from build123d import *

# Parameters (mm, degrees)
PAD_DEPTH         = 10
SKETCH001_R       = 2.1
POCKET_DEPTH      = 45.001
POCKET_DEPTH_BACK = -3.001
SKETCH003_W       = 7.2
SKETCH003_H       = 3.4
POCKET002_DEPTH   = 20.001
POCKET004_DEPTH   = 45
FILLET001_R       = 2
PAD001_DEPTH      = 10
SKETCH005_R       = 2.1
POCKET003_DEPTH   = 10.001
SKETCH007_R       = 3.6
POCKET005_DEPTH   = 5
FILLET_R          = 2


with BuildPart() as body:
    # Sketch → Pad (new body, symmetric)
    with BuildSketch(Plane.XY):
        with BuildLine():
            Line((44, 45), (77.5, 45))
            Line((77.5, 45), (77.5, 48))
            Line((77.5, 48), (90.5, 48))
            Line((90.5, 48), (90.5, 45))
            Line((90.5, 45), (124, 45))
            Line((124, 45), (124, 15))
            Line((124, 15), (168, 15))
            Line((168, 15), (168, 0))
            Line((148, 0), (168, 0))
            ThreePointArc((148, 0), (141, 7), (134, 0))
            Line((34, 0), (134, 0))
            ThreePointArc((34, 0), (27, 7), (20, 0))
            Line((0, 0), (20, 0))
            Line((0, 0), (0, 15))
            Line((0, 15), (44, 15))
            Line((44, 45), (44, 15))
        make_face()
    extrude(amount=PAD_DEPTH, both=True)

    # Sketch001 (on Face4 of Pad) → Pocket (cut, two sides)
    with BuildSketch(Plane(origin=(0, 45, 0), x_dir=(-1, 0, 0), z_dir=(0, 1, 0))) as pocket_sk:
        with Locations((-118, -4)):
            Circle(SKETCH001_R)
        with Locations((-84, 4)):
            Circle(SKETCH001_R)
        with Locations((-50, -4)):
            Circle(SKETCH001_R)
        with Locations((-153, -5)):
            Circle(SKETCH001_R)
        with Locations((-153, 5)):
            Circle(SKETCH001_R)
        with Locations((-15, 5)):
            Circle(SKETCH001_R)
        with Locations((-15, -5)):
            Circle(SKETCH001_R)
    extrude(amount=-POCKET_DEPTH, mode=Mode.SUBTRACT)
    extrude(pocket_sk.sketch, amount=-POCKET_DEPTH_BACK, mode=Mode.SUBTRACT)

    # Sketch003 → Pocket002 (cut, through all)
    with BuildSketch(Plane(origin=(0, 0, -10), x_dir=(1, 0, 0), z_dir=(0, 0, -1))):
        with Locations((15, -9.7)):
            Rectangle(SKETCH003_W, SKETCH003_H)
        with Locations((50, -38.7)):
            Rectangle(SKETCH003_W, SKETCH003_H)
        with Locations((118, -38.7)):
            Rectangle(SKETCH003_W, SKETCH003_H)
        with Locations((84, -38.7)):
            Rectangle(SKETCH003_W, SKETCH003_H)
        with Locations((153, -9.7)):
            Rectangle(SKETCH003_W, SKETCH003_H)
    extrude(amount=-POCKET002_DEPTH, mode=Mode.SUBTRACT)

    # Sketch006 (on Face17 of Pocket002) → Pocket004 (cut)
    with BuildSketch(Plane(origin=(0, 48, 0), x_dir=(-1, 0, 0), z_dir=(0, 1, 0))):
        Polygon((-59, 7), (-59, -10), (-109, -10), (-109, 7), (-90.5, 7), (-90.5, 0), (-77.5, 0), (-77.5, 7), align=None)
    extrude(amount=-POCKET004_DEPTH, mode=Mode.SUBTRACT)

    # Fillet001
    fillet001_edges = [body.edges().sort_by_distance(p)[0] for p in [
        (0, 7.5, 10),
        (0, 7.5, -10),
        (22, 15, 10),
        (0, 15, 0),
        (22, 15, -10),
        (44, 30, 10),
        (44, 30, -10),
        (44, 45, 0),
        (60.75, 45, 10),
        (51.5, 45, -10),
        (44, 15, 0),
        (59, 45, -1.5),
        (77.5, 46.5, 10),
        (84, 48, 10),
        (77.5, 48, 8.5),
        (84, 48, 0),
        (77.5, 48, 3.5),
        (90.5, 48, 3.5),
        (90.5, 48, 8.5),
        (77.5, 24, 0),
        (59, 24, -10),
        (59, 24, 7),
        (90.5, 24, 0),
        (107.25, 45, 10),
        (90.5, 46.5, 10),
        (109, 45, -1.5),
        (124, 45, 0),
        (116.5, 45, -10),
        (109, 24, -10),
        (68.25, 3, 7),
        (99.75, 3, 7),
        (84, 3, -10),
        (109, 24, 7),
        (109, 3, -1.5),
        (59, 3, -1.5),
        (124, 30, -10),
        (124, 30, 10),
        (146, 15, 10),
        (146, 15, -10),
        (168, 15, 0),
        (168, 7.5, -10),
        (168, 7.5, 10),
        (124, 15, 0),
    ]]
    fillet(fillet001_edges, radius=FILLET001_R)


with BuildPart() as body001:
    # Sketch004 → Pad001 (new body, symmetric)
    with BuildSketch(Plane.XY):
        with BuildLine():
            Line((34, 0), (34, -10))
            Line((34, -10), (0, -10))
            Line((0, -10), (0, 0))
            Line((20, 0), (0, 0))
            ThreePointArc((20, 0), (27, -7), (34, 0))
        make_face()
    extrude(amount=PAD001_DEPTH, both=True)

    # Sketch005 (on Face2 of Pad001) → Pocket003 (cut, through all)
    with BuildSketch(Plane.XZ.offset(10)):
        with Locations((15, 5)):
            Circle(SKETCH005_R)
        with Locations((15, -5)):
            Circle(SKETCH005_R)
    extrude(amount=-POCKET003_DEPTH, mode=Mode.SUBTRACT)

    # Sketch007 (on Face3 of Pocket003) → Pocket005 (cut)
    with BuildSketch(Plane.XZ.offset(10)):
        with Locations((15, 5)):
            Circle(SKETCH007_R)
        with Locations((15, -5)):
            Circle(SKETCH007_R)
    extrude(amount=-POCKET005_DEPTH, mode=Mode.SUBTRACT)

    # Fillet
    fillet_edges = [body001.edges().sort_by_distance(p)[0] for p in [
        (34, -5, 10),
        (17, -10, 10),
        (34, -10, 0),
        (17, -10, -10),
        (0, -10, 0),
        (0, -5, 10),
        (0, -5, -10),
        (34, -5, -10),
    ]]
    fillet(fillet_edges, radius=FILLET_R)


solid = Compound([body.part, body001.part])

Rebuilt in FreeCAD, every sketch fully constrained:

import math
import FreeCAD as App
import Part
import Sketcher
from FreeCAD import Vector


def edges_at(feature, points):
    """Names of the edges that pass closest to the given points."""
    edges = feature.Shape.Edges
    near = lambda p: min(range(len(edges)), key=lambda i: edges[i].distToShape(Part.Vertex(*p))[0])
    return sorted({f"Edge{near(p) + 1}" for p in points})


def add_polygon(sketch, points):
    """Adds a closed chain of lines whose ends are joined by coincident constraints."""
    first, n = sketch.GeometryCount, len(points)
    for a, b in zip(points, points[1:] + points[:1]):
        sketch.addGeometry(Part.LineSegment(App.Vector(*a, 0), App.Vector(*b, 0)), False)
    for i in range(n):
        sketch.addConstraint(Sketcher.Constraint("Coincident", first + i, 2, first + (i + 1) % n, 1))

doc = App.newDocument("Part")
body = doc.addObject("PartDesign::Body", "Body")

sketch1 = body.newObject("Sketcher::SketchObject", "Sketch")
sketch1.AttachmentSupport = (doc.getObject("XY_Plane"), [""])
sketch1.MapMode = "FlatFace"
sketch1.addGeometry([
    Part.LineSegment(Vector(77.5, 45, 0), Vector(44, 45, 0)),
    Part.LineSegment(Vector(44, 45, 0), Vector(44, 15, 0)),
    Part.LineSegment(Vector(44, 15, 0), Vector(0, 15, 0)),
    Part.LineSegment(Vector(0, 15, 0), Vector(0, 0, 0)),
    Part.LineSegment(Vector(0, 0, 0), Vector(20, 0, 0)),
    Part.ArcOfCircle(Part.Circle(Vector(27, 0, 0), Vector(0, 0, 1), 7), math.radians(0), math.radians(180)),
    Part.LineSegment(Vector(34, 0, 0), Vector(134, 0, 0)),
    Part.ArcOfCircle(Part.Circle(Vector(141, 0, 0), Vector(0, 0, 1), 7), math.radians(0), math.radians(180)),
    Part.LineSegment(Vector(148, 0, 0), Vector(168, 0, 0)),
    Part.LineSegment(Vector(168, 0, 0), Vector(168, 15, 0)),
    Part.LineSegment(Vector(168, 15, 0), Vector(124, 15, 0)),
    Part.LineSegment(Vector(124, 15, 0), Vector(124, 45, 0)),
    Part.LineSegment(Vector(124, 45, 0), Vector(90.5, 45, 0)),
    Part.LineSegment(Vector(90.5, 45, 0), Vector(90.5, 48, 0)),
    Part.LineSegment(Vector(90.5, 48, 0), Vector(77.5, 48, 0)),
    Part.LineSegment(Vector(77.5, 48, 0), Vector(77.5, 45, 0)),
], False)
sketch1.addConstraint([
    Sketcher.Constraint("Coincident", 0, 2, 1, 1),
    Sketcher.Constraint("Coincident", 1, 2, 2, 1),
    Sketcher.Constraint("Coincident", 2, 2, 3, 1),
    Sketcher.Constraint("Coincident", 3, 2, 4, 1),
    Sketcher.Constraint("Coincident", 4, 2, 5, 2),
    Sketcher.Constraint("Coincident", 5, 1, 6, 1),
    Sketcher.Constraint("Coincident", 6, 2, 7, 2),
    Sketcher.Constraint("Coincident", 7, 1, 8, 1),
    Sketcher.Constraint("Coincident", 8, 2, 9, 1),
    Sketcher.Constraint("Coincident", 9, 2, 10, 1),
    Sketcher.Constraint("Coincident", 10, 2, 11, 1),
    Sketcher.Constraint("Coincident", 11, 2, 12, 1),
    Sketcher.Constraint("Coincident", 12, 2, 13, 1),
    Sketcher.Constraint("Coincident", 13, 2, 14, 1),
    Sketcher.Constraint("Coincident", 14, 2, 15, 1),
    Sketcher.Constraint("Coincident", 15, 2, 0, 1),
    Sketcher.Constraint("Horizontal", 0),
    Sketcher.Constraint("Vertical", 1),
    Sketcher.Constraint("Horizontal", 2),
    Sketcher.Constraint("Vertical", 3),
    Sketcher.Constraint("Horizontal", 4),
    Sketcher.Constraint("Horizontal", 6),
    Sketcher.Constraint("Horizontal", 8),
    Sketcher.Constraint("Vertical", 9),
    Sketcher.Constraint("Horizontal", 10),
    Sketcher.Constraint("Vertical", 11),
    Sketcher.Constraint("Horizontal", 12),
    Sketcher.Constraint("Vertical", 13),
    Sketcher.Constraint("Horizontal", 14),
    Sketcher.Constraint("Vertical", 15),
    Sketcher.Constraint("Coincident", 3, 2, -1, 1),
    Sketcher.Constraint("Equal", 5, 7),
    Sketcher.Constraint("PointOnObject", 5, 3, -1),
    Sketcher.Constraint("PointOnObject", 7, 3, -1),
    Sketcher.Constraint("PointOnObject", 5, 1, -1),
    Sketcher.Constraint("PointOnObject", 7, 1, -1),
    Sketcher.Constraint("Horizontal", 2, 2, 9, 2),
    Sketcher.Constraint("Horizontal", 0, 2, 11, 2),
    Sketcher.Constraint("Equal", 4, 8),
    Sketcher.Constraint("Equal", 2, 10),
    Sketcher.Constraint("Equal", 0, 12),
    Sketcher.Constraint("Radius", 5, 7.0),
    Sketcher.Constraint("DistanceX", 2, 2, 2, 1, 44.0),
    Sketcher.Constraint("DistanceX", 4, 1, 4, 2, 20.0),
    Sketcher.Constraint("DistanceX", 6, 1, 6, 2, 100.0),
    Sketcher.Constraint("DistanceX", 14, 2, 14, 1, 13.0),
    Sketcher.Constraint("DistanceY", 1, 2, 1, 1, 30.0),
    Sketcher.Constraint("DistanceY", 3, 2, 3, 1, 15.0),
    Sketcher.Constraint("DistanceY", 13, 1, 13, 2, 3.0),
])
pad1 = body.newObject("PartDesign::Pad", "Pad")
pad1.Profile = sketch1
pad1.Length = 20
pad1.Midplane = True

sketch2 = body.newObject("Sketcher::SketchObject", "Sketch001")
sketch2.AttachmentSupport = (doc.getObject("XZ_Plane"), [""])
sketch2.MapMode = "FlatFace"
sketch2.AttachmentOffset = App.Placement(Vector(0, 0, -45), App.Rotation())
sketch2.addGeometry([
    Part.Circle(Vector(118, -4, 0), Vector(0, 0, 1), 2.1),
    Part.Circle(Vector(84, 4, 0), Vector(0, 0, 1), 2.1),
    Part.Circle(Vector(50, -4, 0), Vector(0, 0, 1), 2.1),
    Part.Circle(Vector(153, -5, 0), Vector(0, 0, 1), 2.1),
    Part.Circle(Vector(153, 5, 0), Vector(0, 0, 1), 2.1),
    Part.Circle(Vector(15, 5, 0), Vector(0, 0, 1), 2.1),
    Part.Circle(Vector(15, -5, 0), Vector(0, 0, 1), 2.1),
], False)
sketch2.addConstraint([
    Sketcher.Constraint("Equal", 0, 1),
    Sketcher.Constraint("Equal", 1, 2),
    Sketcher.Constraint("Equal", 2, 3),
    Sketcher.Constraint("Equal", 3, 4),
    Sketcher.Constraint("Equal", 4, 5),
    Sketcher.Constraint("Equal", 5, 6),
    Sketcher.Constraint("Symmetric", 3, 3, 4, 3, -1),
    Sketcher.Constraint("Symmetric", 5, 3, 6, 3, -1),
    Sketcher.Constraint("Horizontal", 0, 3, 2, 3),
    Sketcher.Constraint("Horizontal", 4, 3, 5, 3),
    Sketcher.Constraint("Diameter", 0, 4.2),
    Sketcher.Constraint("DistanceX", -1, 1, 0, 3, 118.0),
    Sketcher.Constraint("DistanceY", 0, 3, -1, 1, 4.0),
    Sketcher.Constraint("DistanceX", -1, 1, 1, 3, 84.0),
    Sketcher.Constraint("DistanceY", -1, 1, 1, 3, 4.0),
    Sketcher.Constraint("DistanceX", -1, 1, 2, 3, 50.0),
    Sketcher.Constraint("DistanceX", -1, 1, 3, 3, 153.0),
    Sketcher.Constraint("DistanceY", 3, 3, -1, 1, 5.0),
    Sketcher.Constraint("DistanceX", -1, 1, 5, 3, 15.0),
])
pocket1 = body.newObject("PartDesign::Pocket", "Pocket")
pocket1.Profile = sketch2
pocket1.Type = "ThroughAll"
pocket1.Midplane = True

sketch3 = body.newObject("Sketcher::SketchObject", "Sketch002")
sketch3.AttachmentSupport = (doc.getObject("XY_Plane"), [""])
sketch3.MapMode = "FlatFace"
sketch3.AttachmentOffset = App.Placement(Vector(0, 0, -10), App.Rotation())
add_polygon(sketch3, [(11.4, 8), (11.4, 11.4), (18.6, 11.4), (18.6, 8)])
add_polygon(sketch3, [(46.4, 37), (46.4, 40.4), (53.6, 40.4), (53.6, 37)])
add_polygon(sketch3, [(114.4, 37), (114.4, 40.4), (121.6, 40.4), (121.6, 37)])
add_polygon(sketch3, [(80.4, 37), (80.4, 40.4), (87.6, 40.4), (87.6, 37)])
add_polygon(sketch3, [(149.4, 8), (149.4, 11.4), (156.6, 11.4), (156.6, 8)])
sketch3.addConstraint([
    Sketcher.Constraint("Vertical", 0),
    Sketcher.Constraint("Horizontal", 1),
    Sketcher.Constraint("Vertical", 2),
    Sketcher.Constraint("Horizontal", 3),
    Sketcher.Constraint("Vertical", 4),
    Sketcher.Constraint("Horizontal", 5),
    Sketcher.Constraint("Vertical", 6),
    Sketcher.Constraint("Horizontal", 7),
    Sketcher.Constraint("Vertical", 8),
    Sketcher.Constraint("Horizontal", 9),
    Sketcher.Constraint("Vertical", 10),
    Sketcher.Constraint("Horizontal", 11),
    Sketcher.Constraint("Vertical", 12),
    Sketcher.Constraint("Horizontal", 13),
    Sketcher.Constraint("Vertical", 14),
    Sketcher.Constraint("Horizontal", 15),
    Sketcher.Constraint("Vertical", 16),
    Sketcher.Constraint("Horizontal", 17),
    Sketcher.Constraint("Vertical", 18),
    Sketcher.Constraint("Horizontal", 19),
    Sketcher.Constraint("Horizontal", 5, 2, 8, 2),
    Sketcher.Constraint("Horizontal", 7, 2, 10, 2),
    Sketcher.Constraint("Horizontal", 9, 2, 12, 2),
    Sketcher.Constraint("Horizontal", 11, 2, 14, 2),
    Sketcher.Constraint("Horizontal", 1, 2, 16, 2),
    Sketcher.Constraint("Horizontal", 3, 2, 18, 2),
    Sketcher.Constraint("Equal", 3, 5),
    Sketcher.Constraint("Equal", 7, 9),
    Sketcher.Constraint("Equal", 11, 13),
    Sketcher.Constraint("Equal", 15, 17),
    Sketcher.Constraint("Equal", 2, 4),
    Sketcher.Constraint("DistanceX", 1, 1, 1, 2, 7.2),
    Sketcher.Constraint("DistanceY", 0, 1, 0, 2, 3.4),
    Sketcher.Constraint("DistanceY", -1, 1, 2, 2, 8.0),
    Sketcher.Constraint("DistanceY", -1, 1, 6, 2, 37.0),
    Sketcher.Constraint("DistanceX", 0, 2, 4, 2, 35.0),
    Sketcher.Constraint("DistanceX", 4, 2, 8, 2, 68.0),
    Sketcher.Constraint("DistanceX", 12, 2, 8, 2, 34.0),
    Sketcher.Constraint("DistanceX", 11, 2, 16, 2, 35.0),
    Sketcher.Constraint("DistanceX", -1, 1, 0, 2, 11.4),
])
pocket2 = body.newObject("PartDesign::Pocket", "Pocket001")
pocket2.Profile = sketch3
pocket2.Type = "ThroughAll"
pocket2.Reversed = True

sketch4 = body.newObject("Sketcher::SketchObject", "Sketch003")
sketch4.AttachmentSupport = (doc.getObject("XZ_Plane"), [""])
sketch4.MapMode = "FlatFace"
sketch4.AttachmentOffset = App.Placement(Vector(0, 0, -48), App.Rotation())
add_polygon(sketch4, [(59, -10), (59, 7), (78, 7), (78, 0), (90, 0), (90, 7), (109, 7), (109, -10)])
sketch4.addConstraint([
    Sketcher.Constraint("Vertical", 0),
    Sketcher.Constraint("Horizontal", 1),
    Sketcher.Constraint("Vertical", 2),
    Sketcher.Constraint("Horizontal", 3),
    Sketcher.Constraint("Vertical", 4),
    Sketcher.Constraint("Horizontal", 5),
    Sketcher.Constraint("Vertical", 6),
    Sketcher.Constraint("Horizontal", 7),
    Sketcher.Constraint("PointOnObject", 2, 2, -1),
    Sketcher.Constraint("Horizontal", 1, 2, 4, 2),
    Sketcher.Constraint("Equal", 1, 5),
    Sketcher.Constraint("DistanceX", 3, 1, 3, 2, 13.0),
    Sketcher.Constraint("DistanceX", 7, 2, 7, 1, 50.0),
    Sketcher.Constraint("DistanceY", 0, 1, 0, 2, 17.0),
    Sketcher.Constraint("DistanceY", 2, 2, 2, 1, 7.0),
    Sketcher.Constraint("DistanceX", -1, 1, 0, 2, 59.0),
])
pocket3 = body.newObject("PartDesign::Pocket", "Pocket002")
pocket3.Profile = sketch4
pocket3.Length = 45
pocket3.Reversed = True
doc.recompute()

fillet = body.newObject("PartDesign::Fillet", "Fillet")
fillet.Base = (pocket3, edges_at(pocket3, [
    (0, 7.5, 10),
    (0, 7.5, -10),
    (22, 15, 10),
    (0, 15, 0),
    (22, 15, -10),
    (44, 30, 10),
    (44, 30, -10),
    (44, 45, 0),
    (60.75, 45, 10),
    (51.5, 45, -10),
    (44, 15, 0),
    (59, 45, -1.5),
    (77.5, 46.5, 10),
    (84, 48, 10),
    (77.5, 48, 5),
    (84, 48, 0),
    (77.5, 48, 5),
    (90.5, 48, 5),
    (90.5, 48, 5),
    (77.5, 25.5, 0),
    (59, 24, -10),
    (59, 24, 7),
    (90.5, 25.5, 0),
    (107.25, 45, 10),
    (90.5, 46.5, 10),
    (109, 45, -1.5),
    (124, 45, 0),
    (116.5, 45, -10),
    (109, 24, -10),
    (68.25, 3, 7),
    (99.75, 3, 7),
    (84, 3, -10),
    (109, 24, 7),
    (109, 3, -1.5),
    (59, 3, -1.5),
    (124, 30, -10),
    (124, 30, 10),
    (146, 15, 10),
    (146, 15, -10),
    (168, 15, 0),
    (168, 7.5, -10),
    (168, 7.5, 10),
    (124, 15, 0),
]))
fillet.Radius = 2
body2 = doc.addObject("PartDesign::Body", "Body001")

sketch5 = body2.newObject("Sketcher::SketchObject", "Sketch004")
sketch5.AttachmentSupport = (doc.getObject("XY_Plane001"), [""])
sketch5.MapMode = "FlatFace"
sketch5.addGeometry([
    Part.LineSegment(Vector(34, -10, 0), Vector(34, 0, 0)),
    Part.ArcOfCircle(Part.Circle(Vector(27, 0, 0), Vector(0, 0, 1), 7), math.radians(180), math.radians(360)),
    Part.LineSegment(Vector(20, 0, 0), Vector(0, 0, 0)),
    Part.LineSegment(Vector(0, 0, 0), Vector(0, -10, 0)),
    Part.LineSegment(Vector(0, -10, 0), Vector(34, -10, 0)),
], False)
sketch5.addConstraint([
    Sketcher.Constraint("Tangent", 0, 2, 1, 2),
    Sketcher.Constraint("Coincident", 1, 1, 2, 1),
    Sketcher.Constraint("Coincident", 2, 2, 3, 1),
    Sketcher.Constraint("Coincident", 3, 2, 4, 1),
    Sketcher.Constraint("Coincident", 4, 2, 0, 1),
    Sketcher.Constraint("Vertical", 0),
    Sketcher.Constraint("Horizontal", 2),
    Sketcher.Constraint("Vertical", 3),
    Sketcher.Constraint("Horizontal", 4),
    Sketcher.Constraint("Coincident", 2, 2, -1, 1),
    Sketcher.Constraint("PointOnObject", 1, 3, -1),
    Sketcher.Constraint("Radius", 1, 7.0),
    Sketcher.Constraint("DistanceX", 2, 2, 2, 1, 20.0),
    Sketcher.Constraint("DistanceY", 0, 1, 0, 2, 10.0),
])
pad2 = body2.newObject("PartDesign::Pad", "Pad001")
pad2.Profile = sketch5
pad2.Length = 20
pad2.Midplane = True

sketch6 = body2.newObject("Sketcher::SketchObject", "Sketch005")
sketch6.AttachmentSupport = (doc.getObject("XZ_Plane001"), [""])
sketch6.MapMode = "FlatFace"
sketch6.AttachmentOffset = App.Placement(Vector(0, 0, 10), App.Rotation())
sketch6.addGeometry([
    Part.Circle(Vector(15, 5, 0), Vector(0, 0, 1), 2.1),
    Part.Circle(Vector(15, -5, 0), Vector(0, 0, 1), 2.1),
], False)
sketch6.addConstraint([
    Sketcher.Constraint("Equal", 0, 1),
    Sketcher.Constraint("Symmetric", 0, 3, 1, 3, -1),
    Sketcher.Constraint("Diameter", 0, 4.2),
    Sketcher.Constraint("DistanceX", -1, 1, 0, 3, 15.0),
    Sketcher.Constraint("DistanceY", -1, 1, 0, 3, 5.0),
])
pocket4 = body2.newObject("PartDesign::Pocket", "Pocket003")
pocket4.Profile = sketch6
pocket4.Type = "ThroughAll"

sketch7 = body2.newObject("Sketcher::SketchObject", "Sketch006")
sketch7.AttachmentSupport = (doc.getObject("XZ_Plane001"), [""])
sketch7.MapMode = "FlatFace"
sketch7.AttachmentOffset = App.Placement(Vector(0, 0, 10), App.Rotation())
sketch7.addGeometry([
    Part.Circle(Vector(15, 5, 0), Vector(0, 0, 1), 3.6),
    Part.Circle(Vector(15, -5, 0), Vector(0, 0, 1), 3.6),
], False)
sketch7.addConstraint([
    Sketcher.Constraint("Equal", 0, 1),
    Sketcher.Constraint("Symmetric", 0, 3, 1, 3, -1),
    Sketcher.Constraint("Diameter", 0, 7.2),
    Sketcher.Constraint("DistanceX", -1, 1, 0, 3, 15.0),
    Sketcher.Constraint("DistanceY", -1, 1, 0, 3, 5.0),
])
pocket5 = body2.newObject("PartDesign::Pocket", "Pocket004")
pocket5.Profile = sketch7
pocket5.Length = 5
doc.recompute()

fillet2 = body2.newObject("PartDesign::Fillet", "Fillet001")
fillet2.Base = (pocket5, edges_at(pocket5, [
    (34, -5, 10),
    (17, -10, 10),
    (34, -10, 0),
    (17, -10, -10),
    (0, -10, 0),
    (0, -5, 10),
    (0, -5, -10),
    (34, -5, -10),
]))
fillet2.Radius = 2

doc.recompute()
